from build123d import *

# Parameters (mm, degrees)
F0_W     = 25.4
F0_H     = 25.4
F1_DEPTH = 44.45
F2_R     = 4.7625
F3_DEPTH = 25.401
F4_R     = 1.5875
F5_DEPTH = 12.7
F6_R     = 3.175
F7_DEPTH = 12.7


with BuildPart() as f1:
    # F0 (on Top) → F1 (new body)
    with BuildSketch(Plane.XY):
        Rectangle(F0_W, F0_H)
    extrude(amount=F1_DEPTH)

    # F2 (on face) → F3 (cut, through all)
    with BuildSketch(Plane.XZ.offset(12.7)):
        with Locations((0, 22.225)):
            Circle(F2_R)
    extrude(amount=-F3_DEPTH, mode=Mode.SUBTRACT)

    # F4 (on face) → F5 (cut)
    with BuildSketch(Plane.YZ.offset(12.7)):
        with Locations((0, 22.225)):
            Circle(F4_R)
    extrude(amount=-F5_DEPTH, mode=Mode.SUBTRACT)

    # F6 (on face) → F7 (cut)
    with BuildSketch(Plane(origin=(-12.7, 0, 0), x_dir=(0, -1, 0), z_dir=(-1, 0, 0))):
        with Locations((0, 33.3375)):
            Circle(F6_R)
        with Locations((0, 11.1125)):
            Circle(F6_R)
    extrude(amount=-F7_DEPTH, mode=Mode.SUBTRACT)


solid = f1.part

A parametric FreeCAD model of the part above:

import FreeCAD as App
import Part
import Sketcher

V = App.Vector
Q = App.Units.Quantity


def add_polygon(sketch, points):
    """Adds a closed chain of lines whose ends are joined by coincident constraints."""
    first, n = sketch.GeometryCount, len(points)
    for a, b in zip(points, points[1:] + points[:1]):
        sketch.addGeometry(Part.LineSegment(App.Vector(*a, 0), App.Vector(*b, 0)), False)
    for i in range(n):
        sketch.addConstraint(Sketcher.Constraint("Coincident", first + i, 2, first + (i + 1) % n, 1))

doc = App.newDocument("Part")
body = doc.addObject("PartDesign::Body", "Body")

# Sketch on XY plane
sketch1 = body.newObject("Sketcher::SketchObject", "Sketch")
sketch1.AttachmentSupport = (doc.getObject("XY_Plane"), [""])
sketch1.MapMode = "FlatFace"
add_polygon(sketch1, [(-13, 13), (-13, -13), (13, -13), (13, 13)])  # lines 0-3
sketch1.addConstraint([
    Sketcher.Constraint("Vertical", 0),
    Sketcher.Constraint("Horizontal", 1),
    Sketcher.Constraint("Vertical", 2),
    Sketcher.Constraint("Horizontal", 3),
    Sketcher.Constraint("Symmetric", 0, 2, 2, 2, -1, 1),
    Sketcher.Constraint("Equal", 3, 0),
    Sketcher.Constraint("DistanceX", 1, 1, 1, 2, Q("1 in")),
])
pad1 = body.newObject("PartDesign::Pad", "Pad")
pad1.Profile = sketch1
pad1.Length = Q("1.75 in")

# Sketch on XZ plane
sketch2 = body.newObject("Sketcher::SketchObject", "Sketch001")
sketch2.AttachmentSupport = (doc.getObject("XZ_Plane"), [""])
sketch2.MapMode = "FlatFace"
sketch2.AttachmentOffset = App.Placement(V(0, 0, 0.5 * 25.4), App.Rotation())
sketch2.addGeometry(Part.Circle(V(0, 22.2, 0), V(0, 0, 1), 4.8), False)
sketch2.addConstraint([
    Sketcher.Constraint("PointOnObject", 0, 3, -2),
    Sketcher.Constraint("Diameter", 0, Q("0.375 in")),
    Sketcher.Constraint("DistanceY", -1, 1, 0, 3, Q("0.875 in")),
])
pocket1 = body.newObject("PartDesign::Pocket", "Pocket")
pocket1.Profile = sketch2
pocket1.Type = "ThroughAll"

# Sketch on YZ plane
sketch3 = body.newObject("Sketcher::SketchObject", "Sketch002")
sketch3.AttachmentSupport = (doc.getObject("YZ_Plane"), [""])
sketch3.MapMode = "FlatFace"
sketch3.AttachmentOffset = App.Placement(V(0, 0, 0.5 * 25.4), App.Rotation())
sketch3.addGeometry(Part.Circle(V(0, 22.2, 0), V(0, 0, 1), 1.6), False)
sketch3.addConstraint([
    Sketcher.Constraint("PointOnObject", 0, 3, -2),
    Sketcher.Constraint("Diameter", 0, Q("0.125 in")),
    Sketcher.Constraint("DistanceY", -1, 1, 0, 3, Q("0.875 in")),
])
pocket2 = body.newObject("PartDesign::Pocket", "Pocket001")
pocket2.Profile = sketch3
pocket2.Length = Q("0.5 in")

# Sketch on YZ plane
sketch4 = body.newObject("Sketcher::SketchObject", "Sketch003")
sketch4.AttachmentSupport = (doc.getObject("YZ_Plane"), [""])
sketch4.MapMode = "FlatFace"
sketch4.AttachmentOffset = App.Placement(V(0, 0, -0.5 * 25.4), App.Rotation())
sketch4.addGeometry([
    Part.Circle(V(0, 33.3, 0), V(0, 0, 1), 3.2),
    Part.Circle(V(0, 11.1, 0), V(0, 0, 1), 3.2),
], False)
sketch4.addConstraint([
    Sketcher.Constraint("Equal", 0, 1),
    Sketcher.Constraint("PointOnObject", 0, 3, -2),
    Sketcher.Constraint("PointOnObject", 1, 3, -2),
    Sketcher.Constraint("Diameter", 0, Q("0.25 in")),
    Sketcher.Constraint("DistanceY", -1, 1, 0, 3, Q("1.3125 in")),
    Sketcher.Constraint("DistanceY", -1, 1, 1, 3, Q("0.4375 in")),
])
pocket3 = body.newObject("PartDesign::Pocket", "Pocket002")
pocket3.Profile = sketch4
pocket3.Length = Q("0.5 in")
pocket3.Reversed = True

doc.recompute()
